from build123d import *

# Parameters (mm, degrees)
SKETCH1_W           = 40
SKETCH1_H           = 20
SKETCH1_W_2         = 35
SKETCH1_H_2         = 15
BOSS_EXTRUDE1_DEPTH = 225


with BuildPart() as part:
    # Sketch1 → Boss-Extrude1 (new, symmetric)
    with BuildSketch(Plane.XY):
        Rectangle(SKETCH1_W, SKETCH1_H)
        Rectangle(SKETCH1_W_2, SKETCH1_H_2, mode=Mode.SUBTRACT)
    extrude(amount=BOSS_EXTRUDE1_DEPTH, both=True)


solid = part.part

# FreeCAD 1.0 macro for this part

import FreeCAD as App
import Part
import Sketcher
from FreeCAD import Vector


def add_polygon(sketch, points):
    """Adds a closed chain of lines whose ends are joined by coincident constraints."""
    first, n = sketch.GeometryCount, len(points)
    for a, b in zip(points, points[1:] + points[:1]):
        sketch.addGeometry(Part.LineSegment(App.Vector(*a, 0), App.Vector(*b, 0)), False)
    for i in range(n):
        sketch.addConstraint(Sketcher.Constraint("Coincident", first + i, 2, first + (i + 1) % n, 1))

doc = App.newDocument("Part")
body = doc.addObject("PartDesign::Body", "Body")

# Sketch on XY plane
sketch1 = body.newObject("Sketcher::SketchObject", "Sketch")
sketch1.AttachmentSupport = (doc.getObject("XY_Plane"), [""])
sketch1.MapMode = "FlatFace"
add_polygon(sketch1, [(-20, 10), (-20, -10), (20, -10), (20, 10)])  # lines 0-3
add_polygon(sketch1, [(18, -8), (-18, -8), (-18, 8), (18, 8)])  # lines 4-7
sketch1.addConstraint([
    Sketcher.Constraint("Vertical", 0),
    Sketcher.Constraint("Horizontal", 1),
    Sketcher.Constraint("Vertical", 2),
    Sketcher.Constraint("Horizontal", 3),
    Sketcher.Constraint("Horizontal", 4),
    Sketcher.Constraint("Vertical", 5),
    Sketcher.Constraint("Horizontal", 6),
    Sketcher.Constraint("Vertical", 7),
    Sketcher.Constraint("Symmetric", 0, 2, 2, 2, -1, 1),
    Sketcher.Constraint("Symmetric", 4, 2, 6, 2, -1, 1),
    Sketcher.Constraint("DistanceX", 1, 1, 1, 2, 40.0),
    Sketcher.Constraint("DistanceX", 4, 2, 4, 1, 35.0),
    Sketcher.Constraint("DistanceY", 0, 2, 0, 1, 20.0),
    Sketcher.Constraint("DistanceY", 5, 1, 5, 2, 15.0),
])
pad1 = body.newObject("PartDesign::Pad", "Pad")
pad1.Profile = sketch1
pad1.Length = 450
pad1.Midplane = True

doc.recompute()
